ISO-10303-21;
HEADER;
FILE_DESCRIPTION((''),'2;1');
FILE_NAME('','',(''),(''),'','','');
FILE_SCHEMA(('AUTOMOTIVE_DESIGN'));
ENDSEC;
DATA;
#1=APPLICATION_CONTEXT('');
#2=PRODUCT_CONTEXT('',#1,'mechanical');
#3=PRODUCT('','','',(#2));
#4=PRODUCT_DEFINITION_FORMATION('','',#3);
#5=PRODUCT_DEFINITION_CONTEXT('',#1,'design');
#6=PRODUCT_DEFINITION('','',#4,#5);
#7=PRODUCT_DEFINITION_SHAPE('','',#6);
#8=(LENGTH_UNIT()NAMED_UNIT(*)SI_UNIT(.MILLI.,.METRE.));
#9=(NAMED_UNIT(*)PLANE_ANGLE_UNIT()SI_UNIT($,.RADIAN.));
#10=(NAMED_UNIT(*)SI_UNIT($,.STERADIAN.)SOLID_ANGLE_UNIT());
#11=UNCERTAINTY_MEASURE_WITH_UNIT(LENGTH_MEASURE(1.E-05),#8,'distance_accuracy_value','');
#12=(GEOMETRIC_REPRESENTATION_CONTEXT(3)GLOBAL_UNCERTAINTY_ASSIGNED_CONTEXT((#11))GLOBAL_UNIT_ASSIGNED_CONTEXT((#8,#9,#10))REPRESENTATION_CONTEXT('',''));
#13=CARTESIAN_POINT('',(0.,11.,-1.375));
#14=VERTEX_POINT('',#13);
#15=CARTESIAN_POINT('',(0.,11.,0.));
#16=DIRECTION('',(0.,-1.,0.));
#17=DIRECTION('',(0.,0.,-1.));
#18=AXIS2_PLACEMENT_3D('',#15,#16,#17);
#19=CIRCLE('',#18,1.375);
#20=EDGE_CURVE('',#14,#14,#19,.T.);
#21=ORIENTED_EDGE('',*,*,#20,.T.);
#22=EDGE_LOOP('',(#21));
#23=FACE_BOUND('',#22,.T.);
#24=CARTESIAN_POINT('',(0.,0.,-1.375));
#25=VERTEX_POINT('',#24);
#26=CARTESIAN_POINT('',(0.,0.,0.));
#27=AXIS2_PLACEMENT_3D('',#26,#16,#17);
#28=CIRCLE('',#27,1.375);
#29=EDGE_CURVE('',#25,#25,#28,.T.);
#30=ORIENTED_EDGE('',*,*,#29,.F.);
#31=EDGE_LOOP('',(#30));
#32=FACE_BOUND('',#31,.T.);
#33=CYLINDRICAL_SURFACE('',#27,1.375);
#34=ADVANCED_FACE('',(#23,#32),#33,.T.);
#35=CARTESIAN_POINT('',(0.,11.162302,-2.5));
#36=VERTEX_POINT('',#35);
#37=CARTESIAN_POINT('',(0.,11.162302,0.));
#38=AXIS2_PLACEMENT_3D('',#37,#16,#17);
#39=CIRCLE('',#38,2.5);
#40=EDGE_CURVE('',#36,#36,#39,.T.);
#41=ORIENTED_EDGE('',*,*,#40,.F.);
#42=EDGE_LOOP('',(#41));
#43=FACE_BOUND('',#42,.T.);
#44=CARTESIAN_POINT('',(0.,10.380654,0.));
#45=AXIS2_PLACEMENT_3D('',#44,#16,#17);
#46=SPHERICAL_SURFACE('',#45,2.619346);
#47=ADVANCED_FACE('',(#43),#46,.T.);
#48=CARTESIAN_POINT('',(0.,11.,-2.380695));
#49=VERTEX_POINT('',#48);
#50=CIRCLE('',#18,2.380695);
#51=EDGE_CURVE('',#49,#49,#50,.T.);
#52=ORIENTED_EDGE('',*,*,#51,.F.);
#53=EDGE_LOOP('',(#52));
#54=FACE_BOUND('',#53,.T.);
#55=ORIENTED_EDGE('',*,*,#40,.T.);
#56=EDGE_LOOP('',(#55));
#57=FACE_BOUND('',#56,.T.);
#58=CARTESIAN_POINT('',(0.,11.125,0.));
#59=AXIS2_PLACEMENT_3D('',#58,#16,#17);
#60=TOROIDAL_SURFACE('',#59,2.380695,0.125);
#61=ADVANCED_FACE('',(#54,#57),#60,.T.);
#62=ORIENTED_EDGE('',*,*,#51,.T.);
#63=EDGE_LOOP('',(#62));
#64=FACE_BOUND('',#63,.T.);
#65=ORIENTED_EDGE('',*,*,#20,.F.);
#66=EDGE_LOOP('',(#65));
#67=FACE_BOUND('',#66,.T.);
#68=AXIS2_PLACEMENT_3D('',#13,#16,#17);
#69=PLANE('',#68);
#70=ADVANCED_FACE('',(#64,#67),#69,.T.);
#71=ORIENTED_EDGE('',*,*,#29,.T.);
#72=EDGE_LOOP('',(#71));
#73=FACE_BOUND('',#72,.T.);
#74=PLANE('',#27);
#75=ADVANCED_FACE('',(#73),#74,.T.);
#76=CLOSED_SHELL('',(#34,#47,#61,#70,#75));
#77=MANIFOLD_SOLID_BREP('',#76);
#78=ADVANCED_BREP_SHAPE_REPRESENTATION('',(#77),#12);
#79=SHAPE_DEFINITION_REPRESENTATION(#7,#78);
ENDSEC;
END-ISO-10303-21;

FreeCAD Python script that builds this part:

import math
import FreeCAD as App
import Part
import Sketcher
Q = App.Units.Quantity

doc = App.newDocument("Part")
body = doc.addObject("PartDesign::Body", "Body")

sketch1 = body.newObject("Sketcher::SketchObject", "Sketch")
sketch1.AttachmentSupport = (doc.getObject("YZ_Plane"), [""])
sketch1.MapMode = "FlatFace"
sketch1.addGeometry(Part.LineSegment(App.Vector(13, 0, 0), App.Vector(0, 0, 0)), False)
sketch1.addGeometry(Part.LineSegment(App.Vector(0, 0, 0), App.Vector(0, -1.375, 0)), False)
sketch1.addGeometry(Part.LineSegment(App.Vector(0, -1.375, 0), App.Vector(11, -1.375, 0)), False)
sketch1.addGeometry(Part.LineSegment(App.Vector(11, -1.375, 0), App.Vector(11, -2.380695, 0)), False)
sketch1.addGeometry(Part.ArcOfCircle(Part.Circle(App.Vector(11.125, -2.380695, 0), App.Vector(0, 0, 1), 0.125), math.radians(180), math.radians(287.362325)), False)
sketch1.addGeometry(Part.ArcOfCircle(Part.Circle(App.Vector(10.380654, 0, 0), App.Vector(0, 0, 1), 2.619346), math.radians(-72.637675), math.radians(0)), False)
sketch1.addConstraint(Sketcher.Constraint("Coincident", 0, 2, 1, 1))
sketch1.addConstraint(Sketcher.Constraint("Coincident", 1, 2, 2, 1))
sketch1.addConstraint(Sketcher.Constraint("Coincident", 2, 2, 3, 1))
sketch1.addConstraint(Sketcher.Constraint("Tangent", 3, 2, 4, 1))
sketch1.addConstraint(Sketcher.Constraint("Tangent", 4, 2, 5, 1))
sketch1.addConstraint(Sketcher.Constraint("Coincident", 5, 2, 0, 1))
sketch1.addConstraint(Sketcher.Constraint("Horizontal", 0))
sketch1.addConstraint(Sketcher.Constraint("Vertical", 1))
sketch1.addConstraint(Sketcher.Constraint("Horizontal", 2))
sketch1.addConstraint(Sketcher.Constraint("Vertical", 3))
sketch1.addConstraint(Sketcher.Constraint("Coincident", 0, 2, -1, 1))
sketch1.addConstraint(Sketcher.Constraint("PointOnObject", 5, 3, -1))
sketch1.addConstraint(Sketcher.Constraint("DistanceX", 0, 2, 0, 1, Q("13 mm")))
sketch1.addConstraint(Sketcher.Constraint("DistanceX", 2, 1, 2, 2, Q("11 mm")))
sketch1.addConstraint(Sketcher.Constraint("Radius", 4, Q("0.125 mm")))
sketch1.addConstraint(Sketcher.Constraint("DistanceY", 4, 2, -1, 1, Q("2.5 mm")))
sketch1.addConstraint(Sketcher.Constraint("DistanceY", 1, 2, 1, 1, Q("1.375 mm")))
revolution = body.newObject("PartDesign::Revolution", "Revolution")
revolution.Profile = sketch1
revolution.ReferenceAxis = (sketch1, ["H_Axis"])
revolution.Angle = 360

doc.recompute()
